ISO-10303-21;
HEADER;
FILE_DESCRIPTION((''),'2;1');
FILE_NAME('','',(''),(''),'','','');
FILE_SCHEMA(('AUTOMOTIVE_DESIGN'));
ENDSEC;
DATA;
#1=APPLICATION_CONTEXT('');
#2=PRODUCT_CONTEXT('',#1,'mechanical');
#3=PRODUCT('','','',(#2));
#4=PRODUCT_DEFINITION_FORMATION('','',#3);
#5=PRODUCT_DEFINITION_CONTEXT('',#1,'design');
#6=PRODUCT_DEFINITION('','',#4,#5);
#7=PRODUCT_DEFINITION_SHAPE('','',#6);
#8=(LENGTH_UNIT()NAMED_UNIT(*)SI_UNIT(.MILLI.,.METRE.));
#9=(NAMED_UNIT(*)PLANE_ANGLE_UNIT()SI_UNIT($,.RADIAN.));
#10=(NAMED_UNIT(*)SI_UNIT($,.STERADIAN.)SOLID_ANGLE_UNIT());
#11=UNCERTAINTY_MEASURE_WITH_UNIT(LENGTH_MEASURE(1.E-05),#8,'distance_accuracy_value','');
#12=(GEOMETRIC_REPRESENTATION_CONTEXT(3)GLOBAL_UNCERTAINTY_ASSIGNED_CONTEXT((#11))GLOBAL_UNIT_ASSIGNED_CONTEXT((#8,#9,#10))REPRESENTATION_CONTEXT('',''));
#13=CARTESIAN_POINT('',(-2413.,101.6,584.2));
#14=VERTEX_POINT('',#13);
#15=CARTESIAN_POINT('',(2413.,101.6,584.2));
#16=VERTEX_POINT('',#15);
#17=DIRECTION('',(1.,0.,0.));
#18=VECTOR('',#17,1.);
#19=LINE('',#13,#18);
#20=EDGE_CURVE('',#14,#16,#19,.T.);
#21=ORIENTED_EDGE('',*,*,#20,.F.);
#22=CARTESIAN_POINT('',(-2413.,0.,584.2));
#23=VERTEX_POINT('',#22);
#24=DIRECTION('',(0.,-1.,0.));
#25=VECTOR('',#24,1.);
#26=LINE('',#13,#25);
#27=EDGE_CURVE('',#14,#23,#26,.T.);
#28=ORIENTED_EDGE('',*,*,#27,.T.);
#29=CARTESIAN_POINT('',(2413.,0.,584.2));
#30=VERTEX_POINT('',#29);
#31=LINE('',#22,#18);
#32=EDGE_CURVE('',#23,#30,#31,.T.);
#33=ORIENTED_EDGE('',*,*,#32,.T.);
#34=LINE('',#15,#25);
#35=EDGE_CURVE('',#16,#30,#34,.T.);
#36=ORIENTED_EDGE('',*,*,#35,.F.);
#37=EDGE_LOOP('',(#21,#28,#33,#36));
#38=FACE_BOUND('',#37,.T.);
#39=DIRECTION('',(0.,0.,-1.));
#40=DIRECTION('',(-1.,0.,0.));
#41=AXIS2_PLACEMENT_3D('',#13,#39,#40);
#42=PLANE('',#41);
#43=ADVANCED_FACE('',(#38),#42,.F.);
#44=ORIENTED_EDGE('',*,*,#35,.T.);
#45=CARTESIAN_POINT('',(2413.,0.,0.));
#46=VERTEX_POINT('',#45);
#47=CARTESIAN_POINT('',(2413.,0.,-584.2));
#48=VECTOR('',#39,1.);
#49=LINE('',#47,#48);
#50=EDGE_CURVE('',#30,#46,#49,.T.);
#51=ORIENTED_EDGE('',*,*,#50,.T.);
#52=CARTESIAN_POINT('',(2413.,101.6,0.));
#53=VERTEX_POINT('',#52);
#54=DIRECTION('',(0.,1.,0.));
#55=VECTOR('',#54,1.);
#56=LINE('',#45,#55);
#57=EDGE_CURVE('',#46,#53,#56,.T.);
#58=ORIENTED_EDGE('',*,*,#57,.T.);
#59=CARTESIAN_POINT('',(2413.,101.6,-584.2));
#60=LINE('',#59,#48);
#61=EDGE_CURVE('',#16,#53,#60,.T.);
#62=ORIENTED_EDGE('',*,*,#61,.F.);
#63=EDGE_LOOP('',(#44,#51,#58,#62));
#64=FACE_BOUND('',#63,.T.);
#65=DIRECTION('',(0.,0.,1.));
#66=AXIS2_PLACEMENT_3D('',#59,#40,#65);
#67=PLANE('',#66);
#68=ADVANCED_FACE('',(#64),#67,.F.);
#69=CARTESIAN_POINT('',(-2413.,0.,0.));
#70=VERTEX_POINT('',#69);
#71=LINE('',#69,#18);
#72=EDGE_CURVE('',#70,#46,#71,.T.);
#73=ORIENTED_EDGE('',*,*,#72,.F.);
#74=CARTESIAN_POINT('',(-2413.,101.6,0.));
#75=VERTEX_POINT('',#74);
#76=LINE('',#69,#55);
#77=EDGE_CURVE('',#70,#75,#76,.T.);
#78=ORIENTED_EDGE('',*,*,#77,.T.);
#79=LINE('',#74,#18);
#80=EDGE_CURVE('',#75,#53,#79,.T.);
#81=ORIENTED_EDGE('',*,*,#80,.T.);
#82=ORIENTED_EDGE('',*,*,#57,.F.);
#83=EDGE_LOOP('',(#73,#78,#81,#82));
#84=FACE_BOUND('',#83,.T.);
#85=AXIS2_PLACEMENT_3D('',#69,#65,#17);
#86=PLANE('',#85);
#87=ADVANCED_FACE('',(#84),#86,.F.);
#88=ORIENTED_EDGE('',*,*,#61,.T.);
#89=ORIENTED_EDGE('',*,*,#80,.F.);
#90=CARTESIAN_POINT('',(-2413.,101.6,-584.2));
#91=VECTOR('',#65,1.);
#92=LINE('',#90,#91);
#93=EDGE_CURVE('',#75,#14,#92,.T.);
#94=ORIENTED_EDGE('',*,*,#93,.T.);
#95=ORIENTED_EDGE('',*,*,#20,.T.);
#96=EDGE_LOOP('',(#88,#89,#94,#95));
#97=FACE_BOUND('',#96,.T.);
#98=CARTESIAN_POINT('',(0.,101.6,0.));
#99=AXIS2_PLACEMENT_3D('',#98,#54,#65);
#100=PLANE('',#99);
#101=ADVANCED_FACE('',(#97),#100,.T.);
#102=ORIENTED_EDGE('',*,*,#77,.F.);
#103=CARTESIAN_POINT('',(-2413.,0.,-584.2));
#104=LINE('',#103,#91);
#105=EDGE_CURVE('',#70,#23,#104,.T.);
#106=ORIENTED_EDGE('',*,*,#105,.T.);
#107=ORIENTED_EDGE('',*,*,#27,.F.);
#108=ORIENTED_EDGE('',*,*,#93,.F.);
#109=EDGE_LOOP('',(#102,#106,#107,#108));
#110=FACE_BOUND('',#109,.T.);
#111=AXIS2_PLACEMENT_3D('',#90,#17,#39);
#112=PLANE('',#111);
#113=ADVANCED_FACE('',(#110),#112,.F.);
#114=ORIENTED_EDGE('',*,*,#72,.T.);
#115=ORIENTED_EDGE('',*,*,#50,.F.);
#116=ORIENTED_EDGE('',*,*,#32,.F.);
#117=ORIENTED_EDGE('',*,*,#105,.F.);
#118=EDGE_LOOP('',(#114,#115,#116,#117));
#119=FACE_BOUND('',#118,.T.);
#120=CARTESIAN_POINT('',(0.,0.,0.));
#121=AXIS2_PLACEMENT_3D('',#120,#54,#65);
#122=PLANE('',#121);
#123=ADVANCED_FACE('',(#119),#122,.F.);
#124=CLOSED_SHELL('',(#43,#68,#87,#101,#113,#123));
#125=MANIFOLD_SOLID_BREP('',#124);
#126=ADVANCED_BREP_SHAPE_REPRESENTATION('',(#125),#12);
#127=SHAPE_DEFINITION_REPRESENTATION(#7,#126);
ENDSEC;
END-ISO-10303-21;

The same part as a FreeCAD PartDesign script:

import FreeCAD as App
import Part
import Sketcher
Q = App.Units.Quantity

doc = App.newDocument("Part")
body = doc.addObject("PartDesign::Body", "Body")

# Sketch on XZ plane
sketch1 = body.newObject("Sketcher::SketchObject", "Sketch")
sketch1.AttachmentSupport = (doc.getObject("XZ_Plane"), [""])
sketch1.MapMode = "FlatFace"
sketch1.addGeometry(Part.LineSegment(App.Vector(-2413, -584.2, 0), App.Vector(-2413, 584.2, 0)), False)
sketch1.addGeometry(Part.LineSegment(App.Vector(-2413, 584.2, 0), App.Vector(2413, 584.2, 0)), False)
sketch1.addGeometry(Part.LineSegment(App.Vector(2413, 584.2, 0), App.Vector(2413, -584.2, 0)), False)
sketch1.addGeometry(Part.LineSegment(App.Vector(2413, -584.2, 0), App.Vector(-2413, -584.2, 0)), False)
sketch1.addConstraint(Sketcher.Constraint("Coincident", 0, 2, 1, 1))
sketch1.addConstraint(Sketcher.Constraint("Coincident", 1, 2, 2, 1))
sketch1.addConstraint(Sketcher.Constraint("Coincident", 2, 2, 3, 1))
sketch1.addConstraint(Sketcher.Constraint("Coincident", 3, 2, 0, 1))
sketch1.addConstraint(Sketcher.Constraint("Vertical", 0))
sketch1.addConstraint(Sketcher.Constraint("Horizontal", 1))
sketch1.addConstraint(Sketcher.Constraint("Vertical", 2))
sketch1.addConstraint(Sketcher.Constraint("Horizontal", 3))
sketch1.addConstraint(Sketcher.Constraint("Symmetric", 0, 2, 2, 2, -1, 1))
sketch1.addConstraint(Sketcher.Constraint("DistanceX", 1, 1, 1, 2, Q("190 in")))
sketch1.addConstraint(Sketcher.Constraint("DistanceY", 0, 1, 0, 2, Q("46 in")))
pad1 = body.newObject("PartDesign::Pad", "Pad")
pad1.Profile = sketch1
pad1.Length = Q("4 in")
pad1.Reversed = True

# Sketch on XZ plane
sketch2 = body.newObject("Sketcher::SketchObject", "Sketch001")
sketch2.AttachmentSupport = (doc.getObject("XZ_Plane"), [""])
sketch2.MapMode = "FlatFace"
sketch2.AttachmentOffset = App.Placement(App.Vector(0, 0, -4 * 25.4), App.Rotation())
sketch2.addGeometry(Part.LineSegment(App.Vector(-2413, -584.2, 0), App.Vector(-2413, 0, 0)), False)
sketch2.addGeometry(Part.LineSegment(App.Vector(-2413, 0, 0), App.Vector(2413, 0, 0)), False)
sketch2.addGeometry(Part.LineSegment(App.Vector(2413, 0, 0), App.Vector(2413, -584.2, 0)), False)
sketch2.addGeometry(Part.LineSegment(App.Vector(2413, -584.2, 0), App.Vector(-2413, -584.2, 0)), False)
sketch2.addConstraint(Sketcher.Constraint("Coincident", 0, 2, 1, 1))
sketch2.addConstraint(Sketcher.Constraint("Coincident", 1, 2, 2, 1))
sketch2.addConstraint(Sketcher.Constraint("Coincident", 2, 2, 3, 1))
sketch2.addConstraint(Sketcher.Constraint("Coincident", 3, 2, 0, 1))
sketch2.addConstraint(Sketcher.Constraint("Vertical", 0))
sketch2.addConstraint(Sketcher.Constraint("Horizontal", 1))
sketch2.addConstraint(Sketcher.Constraint("Vertical", 2))
sketch2.addConstraint(Sketcher.Constraint("Horizontal", 3))
sketch2.addConstraint(Sketcher.Constraint("Symmetric", 0, 2, 1, 2, -1, 1))
sketch2.addConstraint(Sketcher.Constraint("DistanceX", 1, 1, 1, 2, Q("190 in")))
sketch2.addConstraint(Sketcher.Constraint("DistanceY", 0, 1, 0, 2, Q("23 in")))
pocket1 = body.newObject("PartDesign::Pocket", "Pocket")
pocket1.Profile = sketch2
pocket1.Type = "ThroughAll"
pocket1.Reversed = True

doc.recompute()
